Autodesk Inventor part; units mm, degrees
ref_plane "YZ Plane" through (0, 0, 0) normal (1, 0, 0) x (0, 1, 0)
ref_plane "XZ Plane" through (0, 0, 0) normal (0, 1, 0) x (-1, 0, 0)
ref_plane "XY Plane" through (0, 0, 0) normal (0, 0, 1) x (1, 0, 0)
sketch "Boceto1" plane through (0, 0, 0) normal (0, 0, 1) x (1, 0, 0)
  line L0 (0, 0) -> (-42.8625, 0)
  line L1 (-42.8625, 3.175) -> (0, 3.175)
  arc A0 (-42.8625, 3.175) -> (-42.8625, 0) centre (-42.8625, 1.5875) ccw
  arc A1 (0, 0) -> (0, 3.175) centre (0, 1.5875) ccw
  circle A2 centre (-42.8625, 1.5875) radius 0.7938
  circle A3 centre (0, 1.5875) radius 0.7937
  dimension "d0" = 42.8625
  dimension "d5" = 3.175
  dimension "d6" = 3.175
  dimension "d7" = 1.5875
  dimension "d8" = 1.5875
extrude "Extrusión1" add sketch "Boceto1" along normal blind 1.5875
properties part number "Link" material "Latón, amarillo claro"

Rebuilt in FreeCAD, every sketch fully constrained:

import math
import FreeCAD as App
import Part
import Sketcher

V = App.Vector
Q = App.Units.Quantity

doc = App.newDocument("Part")
body = doc.addObject("PartDesign::Body", "Body")

# Sketch on XY plane
sketch1 = body.newObject("Sketcher::SketchObject", "Sketch")
sketch1.AttachmentSupport = (doc.getObject("XY_Plane"), [""])
sketch1.MapMode = "FlatFace"
sketch1.addGeometry(Part.LineSegment(V(-42.9, 0, 0), V(0, 0, 0)), False)
sketch1.addGeometry(Part.ArcOfCircle(Part.Circle(V(0, 1.6, 0), V(0, 0, 1), 1.6), math.radians(-90), math.radians(90)), False)
sketch1.addGeometry(Part.LineSegment(V(0, 3.2, 0), V(-42.9, 3.2, 0)), False)
sketch1.addGeometry(Part.ArcOfCircle(Part.Circle(V(-42.9, 1.6, 0), V(0, 0, 1), 1.6), math.radians(90), math.radians(270)), False)
sketch1.addGeometry(Part.Circle(V(-42.9, 1.6, 0), V(0, 0, 1), 0.8), False)
sketch1.addGeometry(Part.Circle(V(0, 1.6, 0), V(0, 0, 1), 0.8), False)
sketch1.addConstraint(Sketcher.Constraint("Tangent", 0, 2, 1, 1))
sketch1.addConstraint(Sketcher.Constraint("Tangent", 1, 2, 2, 1))
sketch1.addConstraint(Sketcher.Constraint("Tangent", 2, 2, 3, 1))
sketch1.addConstraint(Sketcher.Constraint("Tangent", 3, 2, 0, 1))
sketch1.addConstraint(Sketcher.Constraint("Horizontal", 0))
sketch1.addConstraint(Sketcher.Constraint("Horizontal", 2))
sketch1.addConstraint(Sketcher.Constraint("Coincident", 0, 2, -1, 1))
sketch1.addConstraint(Sketcher.Constraint("Coincident", 4, 3, 3, 3))
sketch1.addConstraint(Sketcher.Constraint("Coincident", 5, 3, 1, 3))
sketch1.addConstraint(Sketcher.Constraint("Equal", 4, 5))
sketch1.addConstraint(Sketcher.Constraint("Diameter", 4, Q("0.0625 in")))
sketch1.addConstraint(Sketcher.Constraint("Radius", 1, Q("0.0625 in")))
sketch1.addConstraint(Sketcher.Constraint("DistanceX", 0, 1, 0, 2, Q("1.6875 in")))
pad1 = body.newObject("PartDesign::Pad", "Pad")
pad1.Profile = sketch1
pad1.Length = Q("0.0625 in")

doc.recompute()
